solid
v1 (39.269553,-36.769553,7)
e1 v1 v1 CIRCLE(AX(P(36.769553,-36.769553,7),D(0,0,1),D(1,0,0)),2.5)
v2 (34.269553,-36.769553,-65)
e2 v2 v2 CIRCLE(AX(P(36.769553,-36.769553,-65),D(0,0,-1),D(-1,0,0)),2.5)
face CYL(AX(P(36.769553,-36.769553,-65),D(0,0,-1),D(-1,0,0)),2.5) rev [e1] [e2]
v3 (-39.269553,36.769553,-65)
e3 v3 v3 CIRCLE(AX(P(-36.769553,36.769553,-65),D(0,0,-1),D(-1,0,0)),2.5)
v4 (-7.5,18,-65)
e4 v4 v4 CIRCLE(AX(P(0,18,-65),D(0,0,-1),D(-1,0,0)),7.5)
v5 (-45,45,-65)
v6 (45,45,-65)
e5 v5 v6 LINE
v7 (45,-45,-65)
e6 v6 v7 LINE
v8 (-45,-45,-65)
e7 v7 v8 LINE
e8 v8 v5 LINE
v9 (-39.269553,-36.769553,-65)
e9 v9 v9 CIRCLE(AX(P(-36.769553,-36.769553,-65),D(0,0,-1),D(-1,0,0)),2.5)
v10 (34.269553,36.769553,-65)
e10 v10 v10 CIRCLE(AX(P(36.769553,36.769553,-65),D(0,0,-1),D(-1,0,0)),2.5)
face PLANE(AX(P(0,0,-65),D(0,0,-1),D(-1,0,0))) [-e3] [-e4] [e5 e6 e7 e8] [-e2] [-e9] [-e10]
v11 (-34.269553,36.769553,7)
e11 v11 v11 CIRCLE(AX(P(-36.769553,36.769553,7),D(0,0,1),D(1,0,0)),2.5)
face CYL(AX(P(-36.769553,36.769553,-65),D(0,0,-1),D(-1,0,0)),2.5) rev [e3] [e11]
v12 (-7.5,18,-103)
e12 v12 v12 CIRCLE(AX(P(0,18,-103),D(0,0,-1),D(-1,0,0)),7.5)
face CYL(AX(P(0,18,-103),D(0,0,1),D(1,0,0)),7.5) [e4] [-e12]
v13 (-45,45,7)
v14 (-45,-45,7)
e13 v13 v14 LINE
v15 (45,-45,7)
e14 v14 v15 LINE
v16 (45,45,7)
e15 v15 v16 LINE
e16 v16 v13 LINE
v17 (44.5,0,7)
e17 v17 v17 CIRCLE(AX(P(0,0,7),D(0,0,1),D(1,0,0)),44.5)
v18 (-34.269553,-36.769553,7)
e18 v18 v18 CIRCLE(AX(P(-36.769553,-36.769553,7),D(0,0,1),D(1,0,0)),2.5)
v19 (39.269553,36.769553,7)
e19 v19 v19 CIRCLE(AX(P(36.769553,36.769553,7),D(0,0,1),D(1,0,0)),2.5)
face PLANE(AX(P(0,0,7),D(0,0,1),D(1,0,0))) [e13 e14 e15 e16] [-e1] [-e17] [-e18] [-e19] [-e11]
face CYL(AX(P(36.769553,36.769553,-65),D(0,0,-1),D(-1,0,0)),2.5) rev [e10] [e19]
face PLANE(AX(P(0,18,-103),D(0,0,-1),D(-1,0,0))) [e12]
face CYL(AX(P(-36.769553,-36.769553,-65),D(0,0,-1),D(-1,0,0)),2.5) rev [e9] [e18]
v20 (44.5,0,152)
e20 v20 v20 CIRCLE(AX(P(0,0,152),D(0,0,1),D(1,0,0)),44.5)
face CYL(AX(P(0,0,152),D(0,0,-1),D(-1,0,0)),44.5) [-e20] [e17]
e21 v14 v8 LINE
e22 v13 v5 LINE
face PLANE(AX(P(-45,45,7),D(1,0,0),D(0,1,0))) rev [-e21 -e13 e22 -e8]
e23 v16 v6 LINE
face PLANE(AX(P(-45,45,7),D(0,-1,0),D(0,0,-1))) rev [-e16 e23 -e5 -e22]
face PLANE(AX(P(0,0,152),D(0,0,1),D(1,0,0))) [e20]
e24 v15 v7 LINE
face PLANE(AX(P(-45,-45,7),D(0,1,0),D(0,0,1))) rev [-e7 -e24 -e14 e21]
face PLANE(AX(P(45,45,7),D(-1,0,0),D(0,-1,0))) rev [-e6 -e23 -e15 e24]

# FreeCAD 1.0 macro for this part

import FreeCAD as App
import Part
import Sketcher


def add_polygon(sketch, points):
    """Adds a closed chain of lines whose ends are joined by coincident constraints."""
    first, n = sketch.GeometryCount, len(points)
    for a, b in zip(points, points[1:] + points[:1]):
        sketch.addGeometry(Part.LineSegment(App.Vector(*a, 0), App.Vector(*b, 0)), False)
    for i in range(n):
        sketch.addConstraint(Sketcher.Constraint("Coincident", first + i, 2, first + (i + 1) % n, 1))

doc = App.newDocument("Part")
body = doc.addObject("PartDesign::Body", "Body")

# Sketch on XY plane
sketch1 = body.newObject("Sketcher::SketchObject", "Sketch")
sketch1.AttachmentSupport = (doc.getObject("XY_Plane"), [""])
sketch1.MapMode = "FlatFace"
add_polygon(sketch1, [(-45, 45), (-45, -45), (45, -45), (45, 45)])  # lines 0-3
sketch1.addConstraint(Sketcher.Constraint("Vertical", 0))
sketch1.addConstraint(Sketcher.Constraint("Horizontal", 1))
sketch1.addConstraint(Sketcher.Constraint("Vertical", 2))
sketch1.addConstraint(Sketcher.Constraint("Horizontal", 3))
sketch1.addConstraint(Sketcher.Constraint("Symmetric", 0, 2, 2, 2, -1, 1))
sketch1.addConstraint(Sketcher.Constraint("Equal", 3, 0))
sketch1.addConstraint(Sketcher.Constraint("DistanceX", 1, 1, 1, 2, 90.0))
pad1 = body.newObject("PartDesign::Pad", "Pad")
pad1.Profile = sketch1
pad1.Length = 7

# Sketch on XY plane
sketch2 = body.newObject("Sketcher::SketchObject", "Sketch001")
sketch2.AttachmentSupport = (doc.getObject("XY_Plane"), [""])
sketch2.MapMode = "FlatFace"
sketch2.AttachmentOffset = App.Placement(App.Vector(0, 0, 7), App.Rotation())
sketch2.addGeometry(Part.Circle(App.Vector(0, 0, 0), App.Vector(0, 0, 1), 44.5), False)
sketch2.addConstraint(Sketcher.Constraint("Coincident", 0, 3, -1, 1))
sketch2.addConstraint(Sketcher.Constraint("Diameter", 0, 89.0))
pad2 = body.newObject("PartDesign::Pad", "Pad001")
pad2.Profile = sketch2
pad2.Length = 145

# Sketch on XY plane
sketch3 = body.newObject("Sketcher::SketchObject", "Sketch002")
sketch3.AttachmentSupport = (doc.getObject("XY_Plane"), [""])
sketch3.MapMode = "FlatFace"
add_polygon(sketch3, [(45, 45), (45, -45), (-45, -45), (-45, 45)])  # lines 0-3
sketch3.addConstraint(Sketcher.Constraint("Vertical", 0))
sketch3.addConstraint(Sketcher.Constraint("Horizontal", 1))
sketch3.addConstraint(Sketcher.Constraint("Vertical", 2))
sketch3.addConstraint(Sketcher.Constraint("Horizontal", 3))
sketch3.addConstraint(Sketcher.Constraint("Symmetric", 0, 2, 2, 2, -1, 1))
sketch3.addConstraint(Sketcher.Constraint("Equal", 3, 0))
sketch3.addConstraint(Sketcher.Constraint("DistanceX", 1, 2, 1, 1, 90.0))
pad3 = body.newObject("PartDesign::Pad", "Pad002")
pad3.Profile = sketch3
pad3.Length = 65
pad3.Reversed = True

# Sketch on XY plane
sketch4 = body.newObject("Sketcher::SketchObject", "Sketch003")
sketch4.AttachmentSupport = (doc.getObject("XY_Plane"), [""])
sketch4.MapMode = "FlatFace"
sketch4.AttachmentOffset = App.Placement(App.Vector(0, 0, -65), App.Rotation())
sketch4.addGeometry(Part.Circle(App.Vector(0, 18, 0), App.Vector(0, 0, 1), 7.5), False)
sketch4.addConstraint(Sketcher.Constraint("PointOnObject", 0, 3, -2))
sketch4.addConstraint(Sketcher.Constraint("Diameter", 0, 15.0))
sketch4.addConstraint(Sketcher.Constraint("DistanceY", -1, 1, 0, 3, 18.0))
pad4 = body.newObject("PartDesign::Pad", "Pad003")
pad4.Profile = sketch4
pad4.Length = 38
pad4.Reversed = True

# Sketch on XY plane
sketch5 = body.newObject("Sketcher::SketchObject", "Sketch004")
sketch5.AttachmentSupport = (doc.getObject("XY_Plane"), [""])
sketch5.MapMode = "FlatFace"
sketch5.AttachmentOffset = App.Placement(App.Vector(0, 0, -65), App.Rotation())
sketch5.addGeometry(Part.Circle(App.Vector(36.769553, 36.769553, 0), App.Vector(0, 0, 1), 2.5), False)
sketch5.addGeometry(Part.Circle(App.Vector(-36.769553, 36.769553, 0), App.Vector(0, 0, 1), 2.5), False)
sketch5.addGeometry(Part.Circle(App.Vector(-36.769553, -36.769553, 0), App.Vector(0, 0, 1), 2.5), False)
sketch5.addGeometry(Part.Circle(App.Vector(36.769553, -36.769553, 0), App.Vector(0, 0, 1), 2.5), False)
sketch5.addConstraint(Sketcher.Constraint("Equal", 0, 1))
sketch5.addConstraint(Sketcher.Constraint("Equal", 1, 2))
sketch5.addConstraint(Sketcher.Constraint("Equal", 2, 3))
sketch5.addConstraint(Sketcher.Constraint("Symmetric", 0, 3, 2, 3, -1, 1))
sketch5.addConstraint(Sketcher.Constraint("Symmetric", 1, 3, 3, 3, -1, 1))
sketch5.addConstraint(Sketcher.Constraint("Symmetric", 0, 3, 1, 3, -2))
sketch5.addConstraint(Sketcher.Constraint("Diameter", 0, 5.0))
sketch5.addConstraint(Sketcher.Constraint("DistanceX", -1, 1, 0, 3, 36.769553))
sketch5.addConstraint(Sketcher.Constraint("DistanceY", -1, 1, 0, 3, 36.769553))
doc.recompute()
hole = body.newObject("PartDesign::Hole", "Hole")
hole.Profile = sketch5
hole.ThreadType = "None"
hole.Diameter = 5
hole.DepthType = "ThroughAll"
hole.Reversed = True

doc.recompute()
